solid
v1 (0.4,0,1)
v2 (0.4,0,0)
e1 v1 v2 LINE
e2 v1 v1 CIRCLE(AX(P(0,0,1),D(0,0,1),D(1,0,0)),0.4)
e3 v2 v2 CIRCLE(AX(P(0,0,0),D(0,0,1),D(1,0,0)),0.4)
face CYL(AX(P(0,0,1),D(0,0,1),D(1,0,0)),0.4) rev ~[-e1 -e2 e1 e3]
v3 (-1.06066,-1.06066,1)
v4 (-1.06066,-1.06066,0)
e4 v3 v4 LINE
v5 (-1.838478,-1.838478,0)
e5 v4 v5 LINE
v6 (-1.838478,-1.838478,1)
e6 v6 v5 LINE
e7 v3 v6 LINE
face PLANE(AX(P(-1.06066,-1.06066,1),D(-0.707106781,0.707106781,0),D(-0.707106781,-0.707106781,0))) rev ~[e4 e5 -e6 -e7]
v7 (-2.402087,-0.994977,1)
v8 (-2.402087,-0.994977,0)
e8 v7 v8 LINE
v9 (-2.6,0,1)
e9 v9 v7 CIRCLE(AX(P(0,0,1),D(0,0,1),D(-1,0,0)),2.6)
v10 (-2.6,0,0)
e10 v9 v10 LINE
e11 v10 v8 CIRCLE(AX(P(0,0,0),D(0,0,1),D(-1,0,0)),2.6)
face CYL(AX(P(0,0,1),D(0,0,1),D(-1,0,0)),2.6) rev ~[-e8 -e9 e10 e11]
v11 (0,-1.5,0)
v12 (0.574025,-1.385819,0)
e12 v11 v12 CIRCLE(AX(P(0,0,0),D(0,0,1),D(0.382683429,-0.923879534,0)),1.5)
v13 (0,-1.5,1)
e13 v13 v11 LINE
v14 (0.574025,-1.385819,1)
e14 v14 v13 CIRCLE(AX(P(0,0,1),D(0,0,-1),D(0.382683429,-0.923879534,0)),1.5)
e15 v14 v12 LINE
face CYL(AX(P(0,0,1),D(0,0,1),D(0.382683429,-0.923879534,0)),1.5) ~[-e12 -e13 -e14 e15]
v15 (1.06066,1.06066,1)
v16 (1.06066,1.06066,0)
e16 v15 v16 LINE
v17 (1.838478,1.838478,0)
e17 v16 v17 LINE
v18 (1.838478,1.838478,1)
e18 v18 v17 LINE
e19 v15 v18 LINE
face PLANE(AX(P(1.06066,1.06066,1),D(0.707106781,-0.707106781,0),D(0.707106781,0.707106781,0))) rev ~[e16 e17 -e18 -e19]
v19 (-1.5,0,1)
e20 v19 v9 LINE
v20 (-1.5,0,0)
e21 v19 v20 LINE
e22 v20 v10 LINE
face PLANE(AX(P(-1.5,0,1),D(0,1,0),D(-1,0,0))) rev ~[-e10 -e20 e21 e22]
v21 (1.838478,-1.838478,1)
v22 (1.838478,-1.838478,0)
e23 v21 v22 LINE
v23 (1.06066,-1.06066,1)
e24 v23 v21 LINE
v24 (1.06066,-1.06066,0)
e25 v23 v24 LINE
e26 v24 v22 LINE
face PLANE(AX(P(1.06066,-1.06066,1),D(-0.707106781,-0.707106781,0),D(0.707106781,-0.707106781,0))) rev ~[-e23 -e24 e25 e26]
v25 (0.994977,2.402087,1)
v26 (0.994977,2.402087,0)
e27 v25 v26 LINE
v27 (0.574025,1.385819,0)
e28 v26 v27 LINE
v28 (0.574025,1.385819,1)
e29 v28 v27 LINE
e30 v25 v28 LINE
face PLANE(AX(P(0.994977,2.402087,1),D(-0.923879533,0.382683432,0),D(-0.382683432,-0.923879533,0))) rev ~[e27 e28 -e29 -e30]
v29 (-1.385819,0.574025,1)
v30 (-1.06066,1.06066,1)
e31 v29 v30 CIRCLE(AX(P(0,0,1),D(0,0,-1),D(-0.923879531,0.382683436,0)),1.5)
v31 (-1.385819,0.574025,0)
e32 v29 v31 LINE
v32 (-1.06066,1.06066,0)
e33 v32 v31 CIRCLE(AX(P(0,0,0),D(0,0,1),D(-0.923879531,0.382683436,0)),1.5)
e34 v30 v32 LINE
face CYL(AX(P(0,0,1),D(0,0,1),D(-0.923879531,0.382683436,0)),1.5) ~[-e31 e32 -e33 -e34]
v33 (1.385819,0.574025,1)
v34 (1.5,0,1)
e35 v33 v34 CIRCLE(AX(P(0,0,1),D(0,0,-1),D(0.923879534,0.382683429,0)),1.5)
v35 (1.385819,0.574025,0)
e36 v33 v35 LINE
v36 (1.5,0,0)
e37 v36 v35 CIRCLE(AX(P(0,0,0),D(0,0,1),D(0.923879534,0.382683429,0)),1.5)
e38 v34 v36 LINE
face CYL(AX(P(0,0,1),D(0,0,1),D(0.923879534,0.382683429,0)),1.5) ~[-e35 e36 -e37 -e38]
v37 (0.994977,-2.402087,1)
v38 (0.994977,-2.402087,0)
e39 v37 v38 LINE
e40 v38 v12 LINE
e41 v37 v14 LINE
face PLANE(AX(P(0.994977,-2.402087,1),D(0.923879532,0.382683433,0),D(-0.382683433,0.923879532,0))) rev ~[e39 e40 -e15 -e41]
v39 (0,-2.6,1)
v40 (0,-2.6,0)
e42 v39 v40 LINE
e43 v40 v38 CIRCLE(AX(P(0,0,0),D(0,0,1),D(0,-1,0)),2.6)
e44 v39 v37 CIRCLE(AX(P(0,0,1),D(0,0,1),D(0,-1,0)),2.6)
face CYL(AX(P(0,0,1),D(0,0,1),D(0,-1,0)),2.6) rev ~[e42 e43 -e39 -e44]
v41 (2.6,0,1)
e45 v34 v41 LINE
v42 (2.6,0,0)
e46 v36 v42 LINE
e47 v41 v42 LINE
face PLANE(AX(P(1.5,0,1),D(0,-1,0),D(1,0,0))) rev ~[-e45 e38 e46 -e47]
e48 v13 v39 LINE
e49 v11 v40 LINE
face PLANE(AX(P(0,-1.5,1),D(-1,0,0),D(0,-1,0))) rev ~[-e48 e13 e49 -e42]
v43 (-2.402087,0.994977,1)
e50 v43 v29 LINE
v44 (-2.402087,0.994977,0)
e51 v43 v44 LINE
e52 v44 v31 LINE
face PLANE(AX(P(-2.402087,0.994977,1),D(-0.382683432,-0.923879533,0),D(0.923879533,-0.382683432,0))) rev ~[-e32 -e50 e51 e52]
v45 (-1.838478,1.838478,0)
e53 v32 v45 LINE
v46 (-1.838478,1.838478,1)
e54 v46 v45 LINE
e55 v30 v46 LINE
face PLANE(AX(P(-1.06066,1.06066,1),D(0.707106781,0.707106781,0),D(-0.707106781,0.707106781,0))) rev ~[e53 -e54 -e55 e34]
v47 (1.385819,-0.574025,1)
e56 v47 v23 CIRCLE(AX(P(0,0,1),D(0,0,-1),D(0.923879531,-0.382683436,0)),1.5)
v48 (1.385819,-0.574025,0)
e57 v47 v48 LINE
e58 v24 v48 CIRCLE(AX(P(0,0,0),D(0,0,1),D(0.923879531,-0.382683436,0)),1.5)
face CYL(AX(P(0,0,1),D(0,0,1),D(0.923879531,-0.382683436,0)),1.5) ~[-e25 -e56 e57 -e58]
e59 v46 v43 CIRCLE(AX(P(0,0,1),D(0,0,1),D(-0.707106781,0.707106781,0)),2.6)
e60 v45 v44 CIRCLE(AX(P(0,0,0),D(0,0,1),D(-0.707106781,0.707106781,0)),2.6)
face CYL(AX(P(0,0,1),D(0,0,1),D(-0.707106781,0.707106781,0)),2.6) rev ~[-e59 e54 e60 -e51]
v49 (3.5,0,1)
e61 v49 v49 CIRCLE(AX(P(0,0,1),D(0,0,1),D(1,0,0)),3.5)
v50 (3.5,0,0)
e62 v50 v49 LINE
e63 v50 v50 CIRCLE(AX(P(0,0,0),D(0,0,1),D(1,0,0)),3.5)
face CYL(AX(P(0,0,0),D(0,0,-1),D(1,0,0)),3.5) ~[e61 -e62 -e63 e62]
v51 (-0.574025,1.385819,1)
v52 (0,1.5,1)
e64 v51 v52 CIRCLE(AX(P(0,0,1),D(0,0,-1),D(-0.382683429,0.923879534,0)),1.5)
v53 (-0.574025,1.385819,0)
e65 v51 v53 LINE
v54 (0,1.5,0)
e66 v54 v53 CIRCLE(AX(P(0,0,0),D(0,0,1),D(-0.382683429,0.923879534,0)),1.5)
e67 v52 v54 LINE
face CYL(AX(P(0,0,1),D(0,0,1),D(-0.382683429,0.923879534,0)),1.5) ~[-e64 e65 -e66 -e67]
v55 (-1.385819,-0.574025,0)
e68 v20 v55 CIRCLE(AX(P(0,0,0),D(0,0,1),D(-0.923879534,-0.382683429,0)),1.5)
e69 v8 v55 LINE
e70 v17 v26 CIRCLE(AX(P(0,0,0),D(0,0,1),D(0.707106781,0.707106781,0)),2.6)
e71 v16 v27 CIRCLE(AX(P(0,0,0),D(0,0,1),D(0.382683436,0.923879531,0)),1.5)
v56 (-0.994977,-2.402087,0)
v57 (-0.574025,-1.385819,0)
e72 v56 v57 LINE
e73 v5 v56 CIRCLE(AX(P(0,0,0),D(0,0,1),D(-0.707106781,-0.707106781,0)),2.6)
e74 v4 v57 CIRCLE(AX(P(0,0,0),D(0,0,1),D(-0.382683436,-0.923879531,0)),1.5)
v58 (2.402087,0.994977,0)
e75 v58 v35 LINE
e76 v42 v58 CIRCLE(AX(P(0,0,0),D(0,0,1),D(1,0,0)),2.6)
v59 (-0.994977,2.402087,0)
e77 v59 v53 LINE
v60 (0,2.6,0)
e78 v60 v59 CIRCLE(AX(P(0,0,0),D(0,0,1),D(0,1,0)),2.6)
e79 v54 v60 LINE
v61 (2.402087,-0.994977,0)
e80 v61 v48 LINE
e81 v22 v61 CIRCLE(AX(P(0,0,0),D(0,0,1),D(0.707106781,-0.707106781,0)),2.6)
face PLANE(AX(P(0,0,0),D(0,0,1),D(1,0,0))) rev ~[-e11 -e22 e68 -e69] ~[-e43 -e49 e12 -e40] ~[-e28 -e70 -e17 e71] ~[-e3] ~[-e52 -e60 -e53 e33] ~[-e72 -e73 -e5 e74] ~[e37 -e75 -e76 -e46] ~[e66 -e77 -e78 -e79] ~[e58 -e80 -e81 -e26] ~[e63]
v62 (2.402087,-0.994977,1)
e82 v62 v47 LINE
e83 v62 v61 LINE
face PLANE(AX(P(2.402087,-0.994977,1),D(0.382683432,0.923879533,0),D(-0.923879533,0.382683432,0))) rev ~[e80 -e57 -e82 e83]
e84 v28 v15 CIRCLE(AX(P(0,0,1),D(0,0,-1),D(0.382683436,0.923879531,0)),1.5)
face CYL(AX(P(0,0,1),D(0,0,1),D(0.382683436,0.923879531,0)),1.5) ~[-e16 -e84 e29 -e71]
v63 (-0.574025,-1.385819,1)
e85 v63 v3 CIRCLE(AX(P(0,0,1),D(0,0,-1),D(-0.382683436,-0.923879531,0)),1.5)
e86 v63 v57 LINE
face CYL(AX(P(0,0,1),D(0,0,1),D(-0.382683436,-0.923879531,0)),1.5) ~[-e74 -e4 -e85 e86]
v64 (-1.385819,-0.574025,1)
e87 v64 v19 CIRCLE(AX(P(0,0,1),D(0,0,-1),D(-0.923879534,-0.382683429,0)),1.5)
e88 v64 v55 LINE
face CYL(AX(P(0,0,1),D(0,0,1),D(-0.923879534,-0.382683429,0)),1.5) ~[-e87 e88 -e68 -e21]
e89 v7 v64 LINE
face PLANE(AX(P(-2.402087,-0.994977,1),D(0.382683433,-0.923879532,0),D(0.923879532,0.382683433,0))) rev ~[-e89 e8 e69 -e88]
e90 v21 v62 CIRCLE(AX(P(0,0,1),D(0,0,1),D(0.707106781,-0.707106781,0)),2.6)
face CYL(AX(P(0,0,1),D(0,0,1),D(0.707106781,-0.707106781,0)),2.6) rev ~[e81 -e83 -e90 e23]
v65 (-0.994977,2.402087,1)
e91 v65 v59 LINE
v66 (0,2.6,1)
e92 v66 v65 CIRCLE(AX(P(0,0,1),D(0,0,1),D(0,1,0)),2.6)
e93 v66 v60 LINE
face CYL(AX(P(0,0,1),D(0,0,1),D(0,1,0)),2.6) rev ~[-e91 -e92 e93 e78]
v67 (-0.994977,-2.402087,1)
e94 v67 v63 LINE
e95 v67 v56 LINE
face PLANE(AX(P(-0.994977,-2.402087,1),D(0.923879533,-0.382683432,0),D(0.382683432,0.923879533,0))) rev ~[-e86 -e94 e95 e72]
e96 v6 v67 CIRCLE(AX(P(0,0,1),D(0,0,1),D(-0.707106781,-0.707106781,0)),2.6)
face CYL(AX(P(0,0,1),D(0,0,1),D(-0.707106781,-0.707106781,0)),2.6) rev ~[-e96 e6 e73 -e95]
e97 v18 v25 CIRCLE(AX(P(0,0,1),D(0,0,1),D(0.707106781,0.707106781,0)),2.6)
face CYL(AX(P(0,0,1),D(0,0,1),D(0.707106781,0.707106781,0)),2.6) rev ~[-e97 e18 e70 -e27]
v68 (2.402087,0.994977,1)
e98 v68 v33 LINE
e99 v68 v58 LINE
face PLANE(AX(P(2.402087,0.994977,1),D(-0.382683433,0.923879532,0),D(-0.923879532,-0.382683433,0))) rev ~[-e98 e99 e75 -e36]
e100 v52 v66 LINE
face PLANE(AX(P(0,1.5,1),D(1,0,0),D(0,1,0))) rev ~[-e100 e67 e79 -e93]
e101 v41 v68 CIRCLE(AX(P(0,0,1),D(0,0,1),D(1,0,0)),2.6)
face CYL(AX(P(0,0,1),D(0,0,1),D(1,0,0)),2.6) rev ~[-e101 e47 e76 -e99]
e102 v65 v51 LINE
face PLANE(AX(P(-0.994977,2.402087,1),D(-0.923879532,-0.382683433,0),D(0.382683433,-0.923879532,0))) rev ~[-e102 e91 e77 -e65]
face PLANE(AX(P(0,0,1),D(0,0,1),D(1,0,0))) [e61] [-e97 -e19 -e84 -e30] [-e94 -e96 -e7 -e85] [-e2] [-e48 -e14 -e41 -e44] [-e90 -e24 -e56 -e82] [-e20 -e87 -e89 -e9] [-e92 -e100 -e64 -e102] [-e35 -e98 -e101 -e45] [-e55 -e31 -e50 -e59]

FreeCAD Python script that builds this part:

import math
import FreeCAD as App
import Part
import Sketcher
from FreeCAD import Vector
Q = App.Units.Quantity

doc = App.newDocument("Part")
body = doc.addObject("PartDesign::Body", "Body")

sketch1 = body.newObject("Sketcher::SketchObject", "Sketch")
sketch1.AttachmentSupport = (doc.getObject("XY_Plane"), [""])
sketch1.MapMode = "FlatFace"
sketch1.addGeometry(Part.Circle(Vector(0, 0, 0), Vector(0, 0, 1), 3.5), False)
sketch1.addConstraint([
    Sketcher.Constraint("Coincident", 0, 3, -1, 1),
    Sketcher.Constraint("Diameter", 0, Q("7 mm")),
])
pad1 = body.newObject("PartDesign::Pad", "Pad")
pad1.Profile = sketch1
pad1.Length = 1

sketch2 = body.newObject("Sketcher::SketchObject", "Sketch001")
sketch2.AttachmentSupport = (doc.getObject("XY_Plane"), [""])
sketch2.MapMode = "FlatFace"
sketch2.AttachmentOffset = App.Placement(Vector(0, 0, 1), App.Rotation())
sketch2.addGeometry(Part.Circle(Vector(0, 0, 0), Vector(0, 0, 1), 0.4), False)
sketch2.addConstraint([
    Sketcher.Constraint("Coincident", 0, 3, -1, 1),
    Sketcher.Constraint("Diameter", 0, Q("0.8 mm")),
])
pocket1 = body.newObject("PartDesign::Pocket", "Pocket")
pocket1.Profile = sketch2
pocket1.Type = "ThroughAll"

sketch3 = body.newObject("Sketcher::SketchObject", "Sketch002")
sketch3.AttachmentSupport = (doc.getObject("XY_Plane"), [""])
sketch3.MapMode = "FlatFace"
sketch3.AttachmentOffset = App.Placement(Vector(0, 0, 1), App.Rotation())
sketch3.addGeometry([
    Part.LineSegment(Vector(-1.1, -1.1, 0), Vector(-1.8, -1.8, 0)),
    Part.ArcOfCircle(Part.Circle(Vector(0, 0, 0), Vector(0, 0, 1), 2.6), math.radians(-135), math.radians(-113)),
    Part.LineSegment(Vector(-1, -2.4, 0), Vector(-0.6, -1.4, 0)),
    Part.ArcOfCircle(Part.Circle(Vector(0, 0, 0), Vector(0, 0, 1), 1.5), math.radians(-135), math.radians(-113)),
], False)
sketch3.addConstraint([
    Sketcher.Constraint("Coincident", 0, 2, 1, 1),
    Sketcher.Constraint("Coincident", 1, 2, 2, 1),
    Sketcher.Constraint("Coincident", 2, 2, 3, 2),
    Sketcher.Constraint("Coincident", 3, 1, 0, 1),
    Sketcher.Constraint("Coincident", 1, 3, -1, 1),
    Sketcher.Constraint("Coincident", 3, 3, -1, 1),
    Sketcher.Constraint("Radius", 1, Q("2.6 mm")),
    Sketcher.Constraint("Radius", 3, Q("1.5 mm")),
    Sketcher.Constraint("Angle", 0, Q("-135 deg")),
    Sketcher.Constraint("Angle", 2, Q("67.5 deg")),
    Sketcher.Constraint("DistanceX", 0, 2, 1, 2, Q("0.843501 mm")),
    Sketcher.Constraint("DistanceY", 2, 2, -1, 1, Q("1.385819 mm")),
])
pocket2 = body.newObject("PartDesign::Pocket", "Pocket001")
pocket2.Profile = sketch3
pocket2.Type = "ThroughAll"
doc.recompute()

polarpattern = body.newObject("PartDesign::PolarPattern", "PolarPattern")
polarpattern.Originals = [pocket2]
polarpattern.Axis = (doc.getObject("Z_Axis"), [""])
polarpattern.Angle = 360
polarpattern.Occurrences = 8
body.Tip = polarpattern

doc.recompute()
